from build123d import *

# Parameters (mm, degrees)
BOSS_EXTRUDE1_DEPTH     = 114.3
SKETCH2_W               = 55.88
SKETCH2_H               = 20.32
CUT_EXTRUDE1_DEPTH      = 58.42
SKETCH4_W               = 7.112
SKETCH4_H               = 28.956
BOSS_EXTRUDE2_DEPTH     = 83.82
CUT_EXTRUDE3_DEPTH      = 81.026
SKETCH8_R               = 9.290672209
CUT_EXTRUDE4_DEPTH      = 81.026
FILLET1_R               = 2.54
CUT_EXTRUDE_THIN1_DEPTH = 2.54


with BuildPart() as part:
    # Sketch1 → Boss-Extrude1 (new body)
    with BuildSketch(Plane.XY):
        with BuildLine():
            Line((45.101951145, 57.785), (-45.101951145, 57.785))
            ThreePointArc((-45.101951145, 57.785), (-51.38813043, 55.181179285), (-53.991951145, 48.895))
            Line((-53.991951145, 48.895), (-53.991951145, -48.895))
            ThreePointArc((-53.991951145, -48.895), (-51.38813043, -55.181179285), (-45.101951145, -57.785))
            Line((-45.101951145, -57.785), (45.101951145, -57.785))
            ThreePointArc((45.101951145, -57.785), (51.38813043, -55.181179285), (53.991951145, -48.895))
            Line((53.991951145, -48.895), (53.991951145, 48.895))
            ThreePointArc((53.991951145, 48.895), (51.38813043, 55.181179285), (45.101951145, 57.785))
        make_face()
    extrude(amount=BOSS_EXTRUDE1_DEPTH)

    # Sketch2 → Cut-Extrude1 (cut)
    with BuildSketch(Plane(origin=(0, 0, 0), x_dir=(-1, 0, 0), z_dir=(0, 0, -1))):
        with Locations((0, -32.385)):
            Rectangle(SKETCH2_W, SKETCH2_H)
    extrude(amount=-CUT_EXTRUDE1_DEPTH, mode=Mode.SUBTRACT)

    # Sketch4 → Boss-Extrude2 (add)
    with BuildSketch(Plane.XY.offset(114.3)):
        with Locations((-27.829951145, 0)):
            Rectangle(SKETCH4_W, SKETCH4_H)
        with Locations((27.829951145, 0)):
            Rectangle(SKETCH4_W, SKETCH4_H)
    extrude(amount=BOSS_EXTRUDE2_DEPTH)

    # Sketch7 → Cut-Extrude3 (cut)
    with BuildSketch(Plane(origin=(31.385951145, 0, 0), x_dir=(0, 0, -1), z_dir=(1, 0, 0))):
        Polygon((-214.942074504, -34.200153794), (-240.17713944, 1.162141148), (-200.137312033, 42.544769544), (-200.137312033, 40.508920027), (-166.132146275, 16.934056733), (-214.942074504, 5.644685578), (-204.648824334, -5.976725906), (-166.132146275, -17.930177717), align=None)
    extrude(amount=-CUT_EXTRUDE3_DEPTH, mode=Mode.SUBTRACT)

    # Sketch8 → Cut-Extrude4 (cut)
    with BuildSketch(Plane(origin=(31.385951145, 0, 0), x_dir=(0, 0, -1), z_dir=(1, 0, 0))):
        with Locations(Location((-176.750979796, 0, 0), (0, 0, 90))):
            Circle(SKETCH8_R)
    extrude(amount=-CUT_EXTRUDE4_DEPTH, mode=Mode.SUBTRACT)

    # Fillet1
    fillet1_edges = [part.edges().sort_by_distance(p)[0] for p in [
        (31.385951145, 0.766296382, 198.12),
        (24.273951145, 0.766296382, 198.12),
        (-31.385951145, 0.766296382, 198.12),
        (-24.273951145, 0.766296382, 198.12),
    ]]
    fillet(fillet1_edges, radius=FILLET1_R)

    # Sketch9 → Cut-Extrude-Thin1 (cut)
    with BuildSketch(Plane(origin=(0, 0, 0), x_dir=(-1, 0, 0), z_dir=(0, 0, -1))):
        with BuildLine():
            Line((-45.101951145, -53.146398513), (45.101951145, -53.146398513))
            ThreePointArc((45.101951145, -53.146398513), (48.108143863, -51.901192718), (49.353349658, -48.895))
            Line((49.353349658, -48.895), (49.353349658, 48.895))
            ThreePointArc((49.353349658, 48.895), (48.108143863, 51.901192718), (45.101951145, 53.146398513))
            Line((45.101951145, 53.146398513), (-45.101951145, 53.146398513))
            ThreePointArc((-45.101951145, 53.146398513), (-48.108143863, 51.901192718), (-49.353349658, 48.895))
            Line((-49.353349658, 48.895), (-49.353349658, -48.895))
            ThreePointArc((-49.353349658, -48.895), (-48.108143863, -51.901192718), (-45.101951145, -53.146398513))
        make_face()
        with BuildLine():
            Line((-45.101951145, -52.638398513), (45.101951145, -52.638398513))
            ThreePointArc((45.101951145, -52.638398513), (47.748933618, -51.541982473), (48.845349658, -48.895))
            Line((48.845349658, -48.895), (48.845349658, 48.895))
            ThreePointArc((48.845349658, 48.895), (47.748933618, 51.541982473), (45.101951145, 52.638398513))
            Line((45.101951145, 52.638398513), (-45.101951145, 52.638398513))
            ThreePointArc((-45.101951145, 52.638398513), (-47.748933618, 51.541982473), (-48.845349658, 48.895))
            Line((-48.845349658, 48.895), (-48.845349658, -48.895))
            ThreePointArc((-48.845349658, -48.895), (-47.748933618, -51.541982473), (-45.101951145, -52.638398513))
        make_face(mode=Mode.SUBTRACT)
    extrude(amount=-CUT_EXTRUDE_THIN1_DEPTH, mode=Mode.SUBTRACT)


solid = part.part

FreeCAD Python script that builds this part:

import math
import FreeCAD as App
import Part
import Sketcher

V = App.Vector
Q = App.Units.Quantity


def edges_at(feature, points):
    """Names of the edges that pass closest to the given points."""
    edges = feature.Shape.Edges
    near = lambda p: min(range(len(edges)), key=lambda i: edges[i].distToShape(Part.Vertex(*p))[0])
    return sorted({f"Edge{near(p) + 1}" for p in points})

doc = App.newDocument("Part")
body = doc.addObject("PartDesign::Body", "Body")

# Sketch on XY plane
sketch1 = body.newObject("Sketcher::SketchObject", "Sketch")
sketch1.AttachmentSupport = (doc.getObject("XY_Plane"), [""])
sketch1.MapMode = "FlatFace"
sketch1.addGeometry([
    Part.LineSegment(V(45.101951, 57.785, 0), V(-45.101951, 57.785, 0)),  # 0
    Part.ArcOfCircle(Part.Circle(V(-45.101951, 48.895, 0), V(0, 0, 1), 8.89), math.radians(90), math.radians(180)),  # 1
    Part.LineSegment(V(-53.991951, 48.895, 0), V(-53.991951, -48.895, 0)),  # 2
    Part.ArcOfCircle(Part.Circle(V(-45.101951, -48.895, 0), V(0, 0, 1), 8.89), math.radians(180), math.radians(270)),  # 3
    Part.LineSegment(V(-45.101951, -57.785, 0), V(45.101951, -57.785, 0)),  # 4
    Part.ArcOfCircle(Part.Circle(V(45.101951, -48.895, 0), V(0, 0, 1), 8.89), math.radians(-90), math.radians(0)),  # 5
    Part.LineSegment(V(53.991951, -48.895, 0), V(53.991951, 48.895, 0)),  # 6
    Part.ArcOfCircle(Part.Circle(V(45.101951, 48.895, 0), V(0, 0, 1), 8.89), math.radians(0), math.radians(90)),  # 7
], False)
sketch1.addConstraint([
    Sketcher.Constraint("Tangent", 0, 2, 1, 1),
    Sketcher.Constraint("Tangent", 1, 2, 2, 1),
    Sketcher.Constraint("Tangent", 2, 2, 3, 1),
    Sketcher.Constraint("Tangent", 3, 2, 4, 1),
    Sketcher.Constraint("Tangent", 4, 2, 5, 1),
    Sketcher.Constraint("Tangent", 5, 2, 6, 1),
    Sketcher.Constraint("Tangent", 6, 2, 7, 1),
    Sketcher.Constraint("Tangent", 7, 2, 0, 1),
    Sketcher.Constraint("Horizontal", 0),
    Sketcher.Constraint("Vertical", 2),
    Sketcher.Constraint("Horizontal", 4),
    Sketcher.Constraint("Vertical", 6),
    Sketcher.Constraint("Equal", 1, 3),
    Sketcher.Constraint("Equal", 3, 5),
    Sketcher.Constraint("Equal", 5, 7),
    Sketcher.Constraint("Symmetric", 1, 3, 5, 3, -1, 1),
    Sketcher.Constraint("Radius", 1, Q("0.35 in")),
    Sketcher.Constraint("DistanceY", 2, 2, 2, 1, Q("3.85 in")),
    Sketcher.Constraint("DistanceX", 0, 2, 0, 1, Q("90.203902 mm")),
])
pad1 = body.newObject("PartDesign::Pad", "Pad")
pad1.Profile = sketch1
pad1.Length = Q("4.5 in")

# Sketch on XY plane
sketch2 = body.newObject("Sketcher::SketchObject", "Sketch001")
sketch2.AttachmentSupport = (doc.getObject("XY_Plane"), [""])
sketch2.MapMode = "FlatFace"
sketch2.addGeometry([
    Part.LineSegment(V(27.94, -22.225, 0), V(27.94, -42.545, 0)),
    Part.LineSegment(V(27.94, -42.545, 0), V(-27.94, -42.545, 0)),
    Part.LineSegment(V(-27.94, -42.545, 0), V(-27.94, -22.225, 0)),
    Part.LineSegment(V(-27.94, -22.225, 0), V(27.94, -22.225, 0)),
], False)
sketch2.addConstraint([
    Sketcher.Constraint("Coincident", 0, 2, 1, 1),
    Sketcher.Constraint("Coincident", 1, 2, 2, 1),
    Sketcher.Constraint("Coincident", 2, 2, 3, 1),
    Sketcher.Constraint("Coincident", 3, 2, 0, 1),
    Sketcher.Constraint("Vertical", 0),
    Sketcher.Constraint("Horizontal", 1),
    Sketcher.Constraint("Vertical", 2),
    Sketcher.Constraint("Horizontal", 3),
    Sketcher.Constraint("DistanceX", 1, 2, 1, 1, Q("2.2 in")),
    Sketcher.Constraint("DistanceY", 0, 2, 0, 1, Q("0.8 in")),
    Sketcher.Constraint("DistanceX", -1, 1, 0, 2, Q("1.1 in")),
    Sketcher.Constraint("DistanceY", 0, 2, -1, 1, Q("1.675 in")),
])
pocket1 = body.newObject("PartDesign::Pocket", "Pocket")
pocket1.Profile = sketch2
pocket1.Length = Q("2.3 in")
pocket1.Reversed = True

# Sketch on XY plane
sketch3 = body.newObject("Sketcher::SketchObject", "Sketch002")
sketch3.AttachmentSupport = (doc.getObject("XY_Plane"), [""])
sketch3.MapMode = "FlatFace"
sketch3.AttachmentOffset = App.Placement(V(0, 0, 4.5 * 25.4), App.Rotation())
sketch3.addGeometry([
    Part.LineSegment(V(-31.385951, 14.478, 0), V(-31.385951, -14.478, 0)),  # 0
    Part.LineSegment(V(-31.385951, -14.478, 0), V(-24.273951, -14.478, 0)),  # 1
    Part.LineSegment(V(-24.273951, -14.478, 0), V(-24.273951, 14.478, 0)),  # 2
    Part.LineSegment(V(-24.273951, 14.478, 0), V(-31.385951, 14.478, 0)),  # 3
    Part.LineSegment(V(24.273951, 14.478, 0), V(24.273951, -14.478, 0)),  # 4
    Part.LineSegment(V(24.273951, -14.478, 0), V(31.385951, -14.478, 0)),  # 5
    Part.LineSegment(V(31.385951, -14.478, 0), V(31.385951, 14.478, 0)),  # 6
    Part.LineSegment(V(31.385951, 14.478, 0), V(24.273951, 14.478, 0)),  # 7
], False)
sketch3.addConstraint([
    Sketcher.Constraint("Coincident", 0, 2, 1, 1),
    Sketcher.Constraint("Coincident", 1, 2, 2, 1),
    Sketcher.Constraint("Coincident", 2, 2, 3, 1),
    Sketcher.Constraint("Coincident", 3, 2, 0, 1),
    Sketcher.Constraint("Coincident", 4, 2, 5, 1),
    Sketcher.Constraint("Coincident", 5, 2, 6, 1),
    Sketcher.Constraint("Coincident", 6, 2, 7, 1),
    Sketcher.Constraint("Coincident", 7, 2, 4, 1),
    Sketcher.Constraint("Vertical", 0),
    Sketcher.Constraint("Horizontal", 1),
    Sketcher.Constraint("Vertical", 2),
    Sketcher.Constraint("Horizontal", 3),
    Sketcher.Constraint("Vertical", 4),
    Sketcher.Constraint("Horizontal", 5),
    Sketcher.Constraint("Vertical", 6),
    Sketcher.Constraint("Horizontal", 7),
    Sketcher.Constraint("Symmetric", 2, 2, 4, 2, -1, 1),
    Sketcher.Constraint("Symmetric", 0, 2, 6, 2, -1, 1),
    Sketcher.Constraint("Horizontal", 1, 2, 4, 2),
    Sketcher.Constraint("DistanceX", 1, 1, 1, 2, Q("0.28 in")),
    Sketcher.Constraint("DistanceY", 0, 2, 0, 1, Q("1.14 in")),
    Sketcher.Constraint("DistanceX", 0, 2, -1, 1, Q("31.385951 mm")),
])
pad2 = body.newObject("PartDesign::Pad", "Pad001")
pad2.Profile = sketch3
pad2.Length = Q("3.3 in")

# Sketch on YZ plane
sketch4 = body.newObject("Sketcher::SketchObject", "Sketch003")
sketch4.AttachmentSupport = (doc.getObject("YZ_Plane"), [""])
sketch4.MapMode = "FlatFace"
sketch4.AttachmentOffset = App.Placement(V(0, 0, 31.385951), App.Rotation())
sketch4.addGeometry([
    Part.LineSegment(V(1.162141, 240.177139, 0), V(-34.200154, 214.942075, 0)),  # 0
    Part.LineSegment(V(-34.200154, 214.942075, 0), V(-17.930178, 166.132146, 0)),  # 1
    Part.LineSegment(V(-17.930178, 166.132146, 0), V(-5.976726, 204.648824, 0)),  # 2
    Part.LineSegment(V(-5.976726, 204.648824, 0), V(5.644686, 214.942075, 0)),  # 3
    Part.LineSegment(V(5.644686, 214.942075, 0), V(16.934057, 166.132146, 0)),  # 4
    Part.LineSegment(V(16.934057, 166.132146, 0), V(40.50892, 200.137312, 0)),  # 5
    Part.LineSegment(V(40.50892, 200.137312, 0), V(42.54477, 200.137312, 0)),  # 6
    Part.LineSegment(V(42.54477, 200.137312, 0), V(1.162141, 240.177139, 0)),  # 7
], False)
sketch4.addConstraint([
    Sketcher.Constraint("Coincident", 0, 2, 1, 1),
    Sketcher.Constraint("Coincident", 1, 2, 2, 1),
    Sketcher.Constraint("Coincident", 2, 2, 3, 1),
    Sketcher.Constraint("Coincident", 3, 2, 4, 1),
    Sketcher.Constraint("Coincident", 4, 2, 5, 1),
    Sketcher.Constraint("Coincident", 5, 2, 6, 1),
    Sketcher.Constraint("Coincident", 6, 2, 7, 1),
    Sketcher.Constraint("Coincident", 7, 2, 0, 1),
    Sketcher.Constraint("Horizontal", 6),
    Sketcher.Constraint("Horizontal", 0, 2, 3, 2),
    Sketcher.Constraint("Horizontal", 1, 2, 4, 2),
    Sketcher.Constraint("Distance", 7, Q("57.5822 mm")),
    Sketcher.Constraint("DistanceX", 6, 1, 6, 2, Q("2.03585 mm")),
    Sketcher.Constraint("Distance", 0, Q("43.443071 mm")),
    Sketcher.Constraint("Distance", 1, Q("51.450182 mm")),
    Sketcher.Constraint("Distance", 2, Q("40.328892 mm")),
    Sketcher.Constraint("Distance", 3, Q("15.524439 mm")),
    Sketcher.Constraint("Distance", 5, Q("41.377838 mm")),
    Sketcher.Constraint("DistanceX", -1, 1, 5, 2, Q("40.50892 mm")),
    Sketcher.Constraint("DistanceX", -1, 1, 7, 2, Q("1.162141 mm")),
    Sketcher.Constraint("DistanceY", -1, 1, 7, 2, Q("240.177139 mm")),
    Sketcher.Constraint("DistanceY", 1, 2, 0, 2, Q("48.809928 mm")),
    Sketcher.Constraint("DistanceY", 2, 2, 0, 2, Q("10.29325 mm")),
    Sketcher.Constraint("DistanceX", 3, 2, 4, 2, Q("11.289371 mm")),
])
pocket2 = body.newObject("PartDesign::Pocket", "Pocket001")
pocket2.Profile = sketch4
pocket2.Length = Q("3.19 in")

# Sketch on YZ plane
sketch5 = body.newObject("Sketcher::SketchObject", "Sketch004")
sketch5.AttachmentSupport = (doc.getObject("YZ_Plane"), [""])
sketch5.MapMode = "FlatFace"
sketch5.AttachmentOffset = App.Placement(V(0, 0, 31.385951), App.Rotation())
sketch5.addGeometry(Part.Circle(V(0, 176.75098, 0), V(0, 0, 1), 9.290672), False)
sketch5.addConstraint([
    Sketcher.Constraint("PointOnObject", 0, 3, -2),
    Sketcher.Constraint("Diameter", 0, Q("18.581344 mm")),
    Sketcher.Constraint("DistanceY", -1, 1, 0, 3, Q("6.9587 in")),
])
pocket3 = body.newObject("PartDesign::Pocket", "Pocket002")
pocket3.Profile = sketch5
pocket3.Length = Q("3.19 in")
doc.recompute()

fillet = body.newObject("PartDesign::Fillet", "Fillet")
fillet.Base = (pocket3, edges_at(pocket3, [
    (31.386, 0.766, 198.12),
    (24.274, 0.766, 198.12),
    (-31.386, 0.766, 198.12),
    (-24.274, 0.766, 198.12),
]))
fillet.Radius = Q("0.1 in")

# Sketch on XY plane
sketch6 = body.newObject("Sketcher::SketchObject", "Sketch005")
sketch6.AttachmentSupport = (doc.getObject("XY_Plane"), [""])
sketch6.MapMode = "FlatFace"
sketch6.addGeometry([
    Part.LineSegment(V(45.101951, -53.146399, 0), V(-45.101951, -53.146399, 0)),  # 0
    Part.ArcOfCircle(Part.Circle(V(-45.101951, -48.895, 0), V(0, 0, 1), 4.251399), math.radians(180), math.radians(270)),  # 1
    Part.LineSegment(V(-49.35335, -48.895, 0), V(-49.35335, 48.895, 0)),  # 2
    Part.ArcOfCircle(Part.Circle(V(-45.101951, 48.895, 0), V(0, 0, 1), 4.251399), math.radians(90), math.radians(180)),  # 3
    Part.LineSegment(V(-45.101951, 53.146399, 0), V(45.101951, 53.146399, 0)),  # 4
    Part.ArcOfCircle(Part.Circle(V(45.101951, 48.895, 0), V(0, 0, 1), 4.251399), math.radians(0), math.radians(90)),  # 5
    Part.LineSegment(V(49.35335, 48.895, 0), V(49.35335, -48.895, 0)),  # 6
    Part.ArcOfCircle(Part.Circle(V(45.101951, -48.895, 0), V(0, 0, 1), 4.251399), math.radians(-90), math.radians(0)),  # 7
    Part.LineSegment(V(-45.101951, -52.638399, 0), V(45.101951, -52.638399, 0)),  # 8
    Part.ArcOfCircle(Part.Circle(V(45.101951, -48.895, 0), V(0, 0, 1), 3.743399), math.radians(-90), math.radians(0)),  # 9
    Part.LineSegment(V(48.84535, -48.895, 0), V(48.84535, 48.895, 0)),  # 10
    Part.ArcOfCircle(Part.Circle(V(45.101951, 48.895, 0), V(0, 0, 1), 3.743399), math.radians(0), math.radians(90)),  # 11
    Part.LineSegment(V(45.101951, 52.638399, 0), V(-45.101951, 52.638399, 0)),  # 12
    Part.ArcOfCircle(Part.Circle(V(-45.101951, 48.895, 0), V(0, 0, 1), 3.743399), math.radians(90), math.radians(180)),  # 13
    Part.LineSegment(V(-48.84535, 48.895, 0), V(-48.84535, -48.895, 0)),  # 14
    Part.ArcOfCircle(Part.Circle(V(-45.101951, -48.895, 0), V(0, 0, 1), 3.743399), math.radians(-180), math.radians(-90)),  # 15
], False)
sketch6.addConstraint([
    Sketcher.Constraint("Tangent", 0, 2, 1, 2),
    Sketcher.Constraint("Tangent", 1, 1, 2, 1),
    Sketcher.Constraint("Tangent", 2, 2, 3, 2),
    Sketcher.Constraint("Tangent", 3, 1, 4, 1),
    Sketcher.Constraint("Tangent", 4, 2, 5, 2),
    Sketcher.Constraint("Tangent", 5, 1, 6, 1),
    Sketcher.Constraint("Tangent", 6, 2, 7, 2),
    Sketcher.Constraint("Tangent", 7, 1, 0, 1),
    Sketcher.Constraint("Tangent", 8, 2, 9, 1),
    Sketcher.Constraint("Tangent", 9, 2, 10, 1),
    Sketcher.Constraint("Tangent", 10, 2, 11, 1),
    Sketcher.Constraint("Tangent", 11, 2, 12, 1),
    Sketcher.Constraint("Tangent", 12, 2, 13, 1),
    Sketcher.Constraint("Tangent", 13, 2, 14, 1),
    Sketcher.Constraint("Tangent", 14, 2, 15, 1),
    Sketcher.Constraint("Tangent", 15, 2, 8, 1),
    Sketcher.Constraint("Horizontal", 0),
    Sketcher.Constraint("Vertical", 2),
    Sketcher.Constraint("Horizontal", 4),
    Sketcher.Constraint("Vertical", 6),
    Sketcher.Constraint("Horizontal", 8),
    Sketcher.Constraint("Vertical", 10),
    Sketcher.Constraint("Horizontal", 12),
    Sketcher.Constraint("Vertical", 14),
    Sketcher.Constraint("Coincident", 9, 3, 7, 3),
    Sketcher.Constraint("Coincident", 11, 3, 5, 3),
    Sketcher.Constraint("Coincident", 13, 3, 3, 3),
    Sketcher.Constraint("Equal", 1, 3),
    Sketcher.Constraint("Equal", 3, 5),
    Sketcher.Constraint("Equal", 5, 7),
    Sketcher.Constraint("Equal", 13, 15),
    Sketcher.Constraint("Symmetric", 1, 3, 5, 3, -1, 1),
    Sketcher.Constraint("DistanceY", 2, 1, 2, 2, Q("3.85 in")),
    Sketcher.Constraint("Radius", 1, Q("4.251399 mm")),
    Sketcher.Constraint("Radius", 9, Q("3.743399 mm")),
    Sketcher.Constraint("DistanceX", 1, 1, 9, 3, Q("94.455301 mm")),
])
pocket4 = body.newObject("PartDesign::Pocket", "Pocket003")
pocket4.Profile = sketch6
pocket4.Length = Q("0.1 in")
pocket4.Reversed = True

doc.recompute()
